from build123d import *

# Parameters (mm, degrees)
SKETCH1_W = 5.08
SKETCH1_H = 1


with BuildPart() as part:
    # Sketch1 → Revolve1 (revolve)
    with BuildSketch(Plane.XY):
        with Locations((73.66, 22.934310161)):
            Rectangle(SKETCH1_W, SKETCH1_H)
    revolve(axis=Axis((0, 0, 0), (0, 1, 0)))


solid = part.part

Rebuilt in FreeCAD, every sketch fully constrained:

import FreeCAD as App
import Part
import Sketcher


def add_polygon(sketch, points):
    """Adds a closed chain of lines whose ends are joined by coincident constraints."""
    first, n = sketch.GeometryCount, len(points)
    for a, b in zip(points, points[1:] + points[:1]):
        sketch.addGeometry(Part.LineSegment(App.Vector(*a, 0), App.Vector(*b, 0)), False)
    for i in range(n):
        sketch.addConstraint(Sketcher.Constraint("Coincident", first + i, 2, first + (i + 1) % n, 1))

doc = App.newDocument("Part")
body = doc.addObject("PartDesign::Body", "Body")

# Sketch on XY plane
sketch1 = doc.addObject("Sketcher::SketchObject", "Sketch")
body.addObject(sketch1)
sketch1.AttachmentSupport = (doc.XY_Plane, [""])
sketch1.MapMode = "FlatFace"
add_polygon(sketch1, [(71.12, 23.43431), (71.12, 22.43431), (76.2, 22.43431), (76.2, 23.43431)])  # lines 0-3
sketch1.addConstraint([
    Sketcher.Constraint("Vertical", 0),
    Sketcher.Constraint("Horizontal", 1),
    Sketcher.Constraint("Vertical", 2),
    Sketcher.Constraint("Horizontal", 3),
    Sketcher.Constraint("DistanceY", 0, 2, 0, 1, 1.0),
    Sketcher.Constraint("DistanceX", 1, 1, 1, 2, 5.08),
    Sketcher.Constraint("DistanceX", -1, 1, 1, 2, 76.2),
    Sketcher.Constraint("DistanceY", -1, 1, 0, 2, 22.43431),
])
revolution = doc.addObject("PartDesign::Revolution", "Revolution")
body.addObject(revolution)
revolution.Profile = sketch1
revolution.ReferenceAxis = (sketch1, ["V_Axis"])
revolution.Angle = 360

doc.recompute()
